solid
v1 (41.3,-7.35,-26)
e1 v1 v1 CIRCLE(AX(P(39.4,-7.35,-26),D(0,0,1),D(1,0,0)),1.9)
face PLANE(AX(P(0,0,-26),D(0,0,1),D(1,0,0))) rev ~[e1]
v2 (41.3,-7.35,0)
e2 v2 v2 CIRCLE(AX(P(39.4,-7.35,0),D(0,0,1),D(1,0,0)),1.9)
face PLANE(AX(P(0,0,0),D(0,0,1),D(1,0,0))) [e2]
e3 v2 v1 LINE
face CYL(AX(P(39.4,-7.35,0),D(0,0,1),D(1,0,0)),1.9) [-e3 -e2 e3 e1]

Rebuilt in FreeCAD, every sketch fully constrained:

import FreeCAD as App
import Part
import Sketcher

V = App.Vector

doc = App.newDocument("Part")
params = doc.addObject("Spreadsheet::Sheet", "Params")
for row, (alias, value) in enumerate([
    ("sketch1_diameter", "3.8 mm"),
    ("pad1_length", "26 mm"),
], start=1):
    params.set(f"A{row}", alias)
    params.set(f"B{row}", "=" + value)
    params.setAlias(f"B{row}", alias)

body = doc.addObject("PartDesign::Body", "Body")

# Sketch on XY plane
sketch1 = body.newObject("Sketcher::SketchObject", "Sketch")
sketch1.AttachmentSupport = (doc.getObject("XY_Plane"), [""])
sketch1.MapMode = "FlatFace"
sketch1.addGeometry(Part.Circle(V(39.4, -7.3, 0), V(0, 0, 1), 1.9), False)
sketch1.addConstraint([
    Sketcher.Constraint("Diameter", 0, 3.8),
    Sketcher.Constraint("DistanceX", -1, 1, 0, 3, 39.4),
    Sketcher.Constraint("DistanceY", 0, 3, -1, 1, 7.35),
])
sketch1.setExpression("Constraints[0]", "Params.sketch1_diameter")
pad1 = body.newObject("PartDesign::Pad", "Pad")
pad1.Profile = sketch1
pad1.setExpression("Length", "Params.pad1_length")
pad1.Reversed = True

doc.recompute()
